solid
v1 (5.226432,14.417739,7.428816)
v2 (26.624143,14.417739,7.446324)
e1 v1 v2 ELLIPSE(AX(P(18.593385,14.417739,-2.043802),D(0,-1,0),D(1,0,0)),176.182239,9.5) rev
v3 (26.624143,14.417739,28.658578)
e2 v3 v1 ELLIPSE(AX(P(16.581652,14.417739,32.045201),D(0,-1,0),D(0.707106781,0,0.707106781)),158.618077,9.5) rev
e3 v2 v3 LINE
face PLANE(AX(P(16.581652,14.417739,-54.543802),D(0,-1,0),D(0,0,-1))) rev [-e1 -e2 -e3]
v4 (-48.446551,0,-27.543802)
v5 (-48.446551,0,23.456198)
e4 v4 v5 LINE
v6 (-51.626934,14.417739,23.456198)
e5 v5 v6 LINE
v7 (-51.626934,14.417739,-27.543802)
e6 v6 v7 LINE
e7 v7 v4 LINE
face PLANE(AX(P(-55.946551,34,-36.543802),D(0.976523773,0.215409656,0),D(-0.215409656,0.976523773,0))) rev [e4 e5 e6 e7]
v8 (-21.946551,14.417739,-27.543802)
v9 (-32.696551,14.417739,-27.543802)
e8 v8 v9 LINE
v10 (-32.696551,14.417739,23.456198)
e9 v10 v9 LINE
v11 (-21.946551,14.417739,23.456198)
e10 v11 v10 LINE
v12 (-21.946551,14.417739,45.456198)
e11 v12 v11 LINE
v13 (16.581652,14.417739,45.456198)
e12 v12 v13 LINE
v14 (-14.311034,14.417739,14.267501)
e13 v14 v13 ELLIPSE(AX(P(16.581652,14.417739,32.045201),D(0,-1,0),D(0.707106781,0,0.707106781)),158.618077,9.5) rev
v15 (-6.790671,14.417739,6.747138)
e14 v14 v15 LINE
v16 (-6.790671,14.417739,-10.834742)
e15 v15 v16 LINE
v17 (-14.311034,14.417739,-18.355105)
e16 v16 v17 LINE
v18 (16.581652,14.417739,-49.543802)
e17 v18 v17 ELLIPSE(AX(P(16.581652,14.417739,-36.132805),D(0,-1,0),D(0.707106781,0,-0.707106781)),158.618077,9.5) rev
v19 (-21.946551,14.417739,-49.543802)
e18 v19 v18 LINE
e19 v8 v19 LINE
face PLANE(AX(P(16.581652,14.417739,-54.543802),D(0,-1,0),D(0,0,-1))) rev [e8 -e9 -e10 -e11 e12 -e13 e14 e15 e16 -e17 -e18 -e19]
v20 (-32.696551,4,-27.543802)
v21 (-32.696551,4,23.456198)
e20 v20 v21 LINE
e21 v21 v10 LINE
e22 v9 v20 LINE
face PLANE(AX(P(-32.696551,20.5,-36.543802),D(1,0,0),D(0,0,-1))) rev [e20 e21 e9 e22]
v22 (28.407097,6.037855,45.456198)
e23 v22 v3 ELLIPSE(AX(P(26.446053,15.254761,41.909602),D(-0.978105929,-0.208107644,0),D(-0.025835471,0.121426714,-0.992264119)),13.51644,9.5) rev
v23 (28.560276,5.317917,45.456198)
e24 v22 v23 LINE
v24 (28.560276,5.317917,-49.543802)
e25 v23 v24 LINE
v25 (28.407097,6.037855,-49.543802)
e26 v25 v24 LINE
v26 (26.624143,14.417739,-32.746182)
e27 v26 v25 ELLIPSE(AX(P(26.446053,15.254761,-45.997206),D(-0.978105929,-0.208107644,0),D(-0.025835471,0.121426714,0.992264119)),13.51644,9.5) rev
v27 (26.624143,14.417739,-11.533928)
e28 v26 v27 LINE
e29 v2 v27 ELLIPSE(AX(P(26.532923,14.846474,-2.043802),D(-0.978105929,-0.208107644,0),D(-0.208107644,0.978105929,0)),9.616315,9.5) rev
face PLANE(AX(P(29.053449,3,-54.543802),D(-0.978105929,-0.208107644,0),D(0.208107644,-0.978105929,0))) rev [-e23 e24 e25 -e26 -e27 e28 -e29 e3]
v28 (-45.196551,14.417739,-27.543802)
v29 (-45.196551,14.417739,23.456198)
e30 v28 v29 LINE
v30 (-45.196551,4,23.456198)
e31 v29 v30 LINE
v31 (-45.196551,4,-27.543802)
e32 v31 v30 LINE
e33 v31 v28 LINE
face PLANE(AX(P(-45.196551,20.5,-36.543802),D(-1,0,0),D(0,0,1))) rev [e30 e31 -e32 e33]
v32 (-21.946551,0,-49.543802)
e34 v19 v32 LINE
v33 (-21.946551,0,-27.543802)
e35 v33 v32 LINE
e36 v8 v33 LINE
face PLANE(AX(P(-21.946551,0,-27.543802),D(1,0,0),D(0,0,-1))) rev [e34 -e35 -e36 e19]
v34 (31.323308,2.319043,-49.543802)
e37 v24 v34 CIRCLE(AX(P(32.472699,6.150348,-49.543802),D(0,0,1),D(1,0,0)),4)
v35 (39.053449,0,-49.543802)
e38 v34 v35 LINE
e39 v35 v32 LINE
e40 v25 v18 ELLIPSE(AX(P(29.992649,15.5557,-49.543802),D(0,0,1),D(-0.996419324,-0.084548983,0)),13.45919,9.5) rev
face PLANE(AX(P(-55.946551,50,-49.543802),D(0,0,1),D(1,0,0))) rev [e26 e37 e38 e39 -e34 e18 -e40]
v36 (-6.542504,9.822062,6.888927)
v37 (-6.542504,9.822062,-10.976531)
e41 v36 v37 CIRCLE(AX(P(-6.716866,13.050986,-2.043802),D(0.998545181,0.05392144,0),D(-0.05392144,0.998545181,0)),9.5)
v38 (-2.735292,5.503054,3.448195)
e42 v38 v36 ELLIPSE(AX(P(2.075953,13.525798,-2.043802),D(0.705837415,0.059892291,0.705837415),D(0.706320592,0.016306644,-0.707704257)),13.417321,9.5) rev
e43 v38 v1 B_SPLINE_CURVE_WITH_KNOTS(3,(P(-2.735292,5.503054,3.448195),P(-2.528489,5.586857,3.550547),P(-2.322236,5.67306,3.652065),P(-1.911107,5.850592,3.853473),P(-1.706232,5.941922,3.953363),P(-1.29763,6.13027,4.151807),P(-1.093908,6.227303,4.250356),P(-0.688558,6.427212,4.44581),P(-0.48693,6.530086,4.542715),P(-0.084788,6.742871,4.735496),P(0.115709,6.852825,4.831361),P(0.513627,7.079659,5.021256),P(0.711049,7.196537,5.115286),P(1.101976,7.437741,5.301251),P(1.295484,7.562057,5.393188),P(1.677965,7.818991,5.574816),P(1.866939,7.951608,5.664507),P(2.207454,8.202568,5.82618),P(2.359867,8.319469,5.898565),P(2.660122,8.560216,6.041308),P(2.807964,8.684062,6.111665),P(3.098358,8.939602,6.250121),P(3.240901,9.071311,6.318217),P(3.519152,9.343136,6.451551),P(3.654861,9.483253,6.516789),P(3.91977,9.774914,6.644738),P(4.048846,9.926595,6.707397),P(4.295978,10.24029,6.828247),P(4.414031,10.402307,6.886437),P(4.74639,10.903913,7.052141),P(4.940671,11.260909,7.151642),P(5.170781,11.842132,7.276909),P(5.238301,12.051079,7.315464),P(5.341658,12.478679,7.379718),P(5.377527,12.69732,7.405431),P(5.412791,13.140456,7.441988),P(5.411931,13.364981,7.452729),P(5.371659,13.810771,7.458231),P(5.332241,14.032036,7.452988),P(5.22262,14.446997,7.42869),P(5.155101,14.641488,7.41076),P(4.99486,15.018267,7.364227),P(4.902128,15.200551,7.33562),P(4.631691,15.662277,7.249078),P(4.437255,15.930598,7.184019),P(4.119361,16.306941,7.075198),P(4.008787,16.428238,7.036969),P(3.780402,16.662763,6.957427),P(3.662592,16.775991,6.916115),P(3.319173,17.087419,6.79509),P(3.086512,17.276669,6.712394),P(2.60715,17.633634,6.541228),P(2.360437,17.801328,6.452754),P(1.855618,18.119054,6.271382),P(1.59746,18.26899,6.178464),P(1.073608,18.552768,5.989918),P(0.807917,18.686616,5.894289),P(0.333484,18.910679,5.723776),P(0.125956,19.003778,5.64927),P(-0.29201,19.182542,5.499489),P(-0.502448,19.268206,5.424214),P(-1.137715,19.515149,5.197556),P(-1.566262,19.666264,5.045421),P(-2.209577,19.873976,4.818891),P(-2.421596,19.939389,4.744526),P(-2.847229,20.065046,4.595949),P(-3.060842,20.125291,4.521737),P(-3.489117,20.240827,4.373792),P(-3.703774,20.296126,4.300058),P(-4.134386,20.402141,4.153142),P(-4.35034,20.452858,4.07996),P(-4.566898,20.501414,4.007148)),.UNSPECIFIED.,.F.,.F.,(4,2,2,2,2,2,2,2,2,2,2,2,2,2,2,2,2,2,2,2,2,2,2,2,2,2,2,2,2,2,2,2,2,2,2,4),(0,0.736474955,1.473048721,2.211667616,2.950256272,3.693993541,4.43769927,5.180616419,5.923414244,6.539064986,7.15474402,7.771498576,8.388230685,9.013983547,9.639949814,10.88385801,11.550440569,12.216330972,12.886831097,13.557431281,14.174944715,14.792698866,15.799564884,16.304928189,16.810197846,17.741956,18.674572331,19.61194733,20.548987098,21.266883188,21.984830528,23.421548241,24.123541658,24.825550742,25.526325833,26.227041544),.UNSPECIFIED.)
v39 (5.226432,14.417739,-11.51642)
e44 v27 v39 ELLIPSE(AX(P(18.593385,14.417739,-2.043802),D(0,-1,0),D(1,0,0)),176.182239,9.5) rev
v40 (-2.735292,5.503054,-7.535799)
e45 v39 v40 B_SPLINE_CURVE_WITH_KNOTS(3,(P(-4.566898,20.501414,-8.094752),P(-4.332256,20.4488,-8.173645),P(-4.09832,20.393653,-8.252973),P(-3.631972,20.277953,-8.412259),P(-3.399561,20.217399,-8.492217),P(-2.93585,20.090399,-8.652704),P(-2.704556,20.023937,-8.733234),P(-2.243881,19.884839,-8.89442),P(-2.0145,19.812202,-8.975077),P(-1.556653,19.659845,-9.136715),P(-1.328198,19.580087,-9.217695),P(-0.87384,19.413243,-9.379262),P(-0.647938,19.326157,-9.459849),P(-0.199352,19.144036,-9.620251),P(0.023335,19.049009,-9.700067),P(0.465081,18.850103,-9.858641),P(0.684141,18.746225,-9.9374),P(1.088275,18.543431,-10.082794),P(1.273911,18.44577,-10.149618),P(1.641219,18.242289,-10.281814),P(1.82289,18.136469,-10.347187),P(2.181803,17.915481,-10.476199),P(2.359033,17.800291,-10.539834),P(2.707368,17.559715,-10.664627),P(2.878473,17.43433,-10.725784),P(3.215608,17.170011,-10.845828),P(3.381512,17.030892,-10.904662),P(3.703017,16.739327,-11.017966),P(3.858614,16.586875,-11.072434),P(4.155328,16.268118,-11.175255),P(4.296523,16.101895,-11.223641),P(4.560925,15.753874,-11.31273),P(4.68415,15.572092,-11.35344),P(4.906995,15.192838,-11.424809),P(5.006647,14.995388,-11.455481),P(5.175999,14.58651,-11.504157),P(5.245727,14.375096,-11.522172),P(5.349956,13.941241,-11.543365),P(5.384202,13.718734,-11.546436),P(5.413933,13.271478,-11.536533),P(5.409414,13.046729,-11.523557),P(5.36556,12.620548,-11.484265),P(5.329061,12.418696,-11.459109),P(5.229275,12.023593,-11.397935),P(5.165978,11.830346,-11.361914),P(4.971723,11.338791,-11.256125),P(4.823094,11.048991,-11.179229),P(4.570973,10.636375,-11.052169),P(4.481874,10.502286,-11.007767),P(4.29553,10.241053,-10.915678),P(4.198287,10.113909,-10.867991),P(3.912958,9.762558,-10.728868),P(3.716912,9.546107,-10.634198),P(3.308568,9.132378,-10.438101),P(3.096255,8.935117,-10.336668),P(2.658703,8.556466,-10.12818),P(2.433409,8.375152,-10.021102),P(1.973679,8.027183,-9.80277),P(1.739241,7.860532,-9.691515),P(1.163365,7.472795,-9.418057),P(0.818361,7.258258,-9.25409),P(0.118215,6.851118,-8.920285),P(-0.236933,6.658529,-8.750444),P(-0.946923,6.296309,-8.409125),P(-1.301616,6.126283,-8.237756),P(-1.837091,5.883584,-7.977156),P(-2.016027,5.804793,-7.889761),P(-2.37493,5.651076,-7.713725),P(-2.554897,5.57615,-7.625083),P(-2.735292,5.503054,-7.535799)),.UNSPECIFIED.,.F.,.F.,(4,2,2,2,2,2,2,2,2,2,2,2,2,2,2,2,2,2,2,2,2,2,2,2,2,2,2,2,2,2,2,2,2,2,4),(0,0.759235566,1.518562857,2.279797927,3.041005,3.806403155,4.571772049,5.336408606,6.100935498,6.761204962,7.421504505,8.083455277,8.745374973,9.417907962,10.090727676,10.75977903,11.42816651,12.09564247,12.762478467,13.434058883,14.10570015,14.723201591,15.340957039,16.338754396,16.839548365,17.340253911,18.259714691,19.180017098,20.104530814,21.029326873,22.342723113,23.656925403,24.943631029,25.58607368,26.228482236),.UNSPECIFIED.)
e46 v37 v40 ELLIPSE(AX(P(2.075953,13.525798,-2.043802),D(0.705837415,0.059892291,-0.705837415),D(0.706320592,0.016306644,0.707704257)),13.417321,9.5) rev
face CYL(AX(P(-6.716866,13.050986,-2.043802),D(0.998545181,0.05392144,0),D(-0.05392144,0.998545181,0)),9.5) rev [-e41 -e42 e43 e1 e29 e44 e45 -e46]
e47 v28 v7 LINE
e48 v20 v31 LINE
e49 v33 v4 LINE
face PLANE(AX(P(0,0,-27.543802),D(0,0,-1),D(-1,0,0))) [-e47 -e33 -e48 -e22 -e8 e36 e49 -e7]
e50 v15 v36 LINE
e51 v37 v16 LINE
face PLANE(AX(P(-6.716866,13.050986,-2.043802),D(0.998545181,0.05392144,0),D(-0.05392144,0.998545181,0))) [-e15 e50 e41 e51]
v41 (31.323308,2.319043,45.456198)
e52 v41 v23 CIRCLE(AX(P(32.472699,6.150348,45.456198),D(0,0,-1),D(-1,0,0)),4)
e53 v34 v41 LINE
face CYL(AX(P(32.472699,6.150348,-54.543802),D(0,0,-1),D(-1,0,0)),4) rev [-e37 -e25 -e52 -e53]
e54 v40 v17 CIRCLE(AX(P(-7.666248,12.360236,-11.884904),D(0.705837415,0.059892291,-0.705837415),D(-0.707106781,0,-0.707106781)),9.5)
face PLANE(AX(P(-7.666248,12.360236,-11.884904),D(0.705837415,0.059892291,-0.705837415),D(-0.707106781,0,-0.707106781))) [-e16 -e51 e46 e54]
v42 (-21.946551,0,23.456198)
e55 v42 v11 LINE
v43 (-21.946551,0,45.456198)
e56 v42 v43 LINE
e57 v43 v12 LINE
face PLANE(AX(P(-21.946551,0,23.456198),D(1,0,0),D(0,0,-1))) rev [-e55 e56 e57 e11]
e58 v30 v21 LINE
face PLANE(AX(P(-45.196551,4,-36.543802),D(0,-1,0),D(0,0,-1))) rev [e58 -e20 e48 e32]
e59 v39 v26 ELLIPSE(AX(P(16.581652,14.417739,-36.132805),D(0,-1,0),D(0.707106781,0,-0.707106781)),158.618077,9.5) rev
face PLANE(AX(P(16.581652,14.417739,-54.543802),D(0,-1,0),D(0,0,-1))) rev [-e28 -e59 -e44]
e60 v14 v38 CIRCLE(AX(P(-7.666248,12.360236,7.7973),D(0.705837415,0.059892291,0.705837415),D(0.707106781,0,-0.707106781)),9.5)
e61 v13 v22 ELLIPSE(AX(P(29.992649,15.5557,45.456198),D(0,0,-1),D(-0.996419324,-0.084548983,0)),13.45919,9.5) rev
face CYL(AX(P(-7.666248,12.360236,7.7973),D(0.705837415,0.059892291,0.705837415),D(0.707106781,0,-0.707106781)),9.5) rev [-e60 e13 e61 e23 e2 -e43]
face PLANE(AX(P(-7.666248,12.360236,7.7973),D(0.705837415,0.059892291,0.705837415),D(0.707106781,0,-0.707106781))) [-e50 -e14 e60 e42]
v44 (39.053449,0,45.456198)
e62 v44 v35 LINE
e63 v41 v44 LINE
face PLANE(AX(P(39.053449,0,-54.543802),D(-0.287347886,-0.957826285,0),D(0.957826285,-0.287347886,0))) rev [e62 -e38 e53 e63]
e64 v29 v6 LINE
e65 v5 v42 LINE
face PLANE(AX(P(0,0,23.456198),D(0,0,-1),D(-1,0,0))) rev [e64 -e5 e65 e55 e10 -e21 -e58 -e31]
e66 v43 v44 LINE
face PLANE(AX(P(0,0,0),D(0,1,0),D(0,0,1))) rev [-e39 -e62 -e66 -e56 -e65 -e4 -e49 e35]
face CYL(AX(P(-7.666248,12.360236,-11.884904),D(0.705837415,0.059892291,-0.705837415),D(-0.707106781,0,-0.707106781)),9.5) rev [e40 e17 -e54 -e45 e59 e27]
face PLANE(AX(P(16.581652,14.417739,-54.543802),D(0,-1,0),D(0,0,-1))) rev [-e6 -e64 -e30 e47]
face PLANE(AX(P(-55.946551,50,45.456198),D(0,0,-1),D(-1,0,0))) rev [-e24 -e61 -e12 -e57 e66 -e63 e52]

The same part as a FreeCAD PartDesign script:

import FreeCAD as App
import Part
import Sketcher
from FreeCAD import Vector
Q = App.Units.Quantity


def edges_at(feature, points):
    """Names of the edges that pass closest to the given points."""
    edges = feature.Shape.Edges
    near = lambda p: min(range(len(edges)), key=lambda i: edges[i].distToShape(Part.Vertex(*p))[0])
    return sorted({f"Edge{near(p) + 1}" for p in points})

doc = App.newDocument("Part")
body = doc.addObject("PartDesign::Body", "Body")

sketch1 = body.newObject("Sketcher::SketchObject", "Sketch")
sketch1.AttachmentSupport = (doc.getObject("XZ_Plane"), [""])
sketch1.MapMode = "FlatFace"
sketch1.addGeometry(Part.LineSegment(Vector(-56, -50, 0), Vector(-56, 45, 0)), False)
sketch1.addGeometry(Part.LineSegment(Vector(-56, 45, 0), Vector(39, 45, 0)), False)
sketch1.addGeometry(Part.LineSegment(Vector(39, 45, 0), Vector(39, -50, 0)), False)
sketch1.addGeometry(Part.LineSegment(Vector(39, -50, 0), Vector(-56, -50, 0)), False)
sketch1.addConstraint(Sketcher.Constraint("Coincident", 0, 2, 1, 1))
sketch1.addConstraint(Sketcher.Constraint("Coincident", 1, 2, 2, 1))
sketch1.addConstraint(Sketcher.Constraint("Coincident", 2, 2, 3, 1))
sketch1.addConstraint(Sketcher.Constraint("Coincident", 3, 2, 0, 1))
sketch1.addConstraint(Sketcher.Constraint("Vertical", 0))
sketch1.addConstraint(Sketcher.Constraint("Horizontal", 1))
sketch1.addConstraint(Sketcher.Constraint("Vertical", 2))
sketch1.addConstraint(Sketcher.Constraint("Horizontal", 3))
sketch1.addConstraint(Sketcher.Constraint("Equal", 3, 0))
sketch1.addConstraint(Sketcher.Constraint("DistanceX", 1, 1, 1, 2, Q("95 mm")))
sketch1.addConstraint(Sketcher.Constraint("DistanceY", -1, 1, 0, 2, Q("45.456198 mm")))
sketch1.addConstraint(Sketcher.Constraint("DistanceX", 0, 2, -1, 1, Q("55.946551 mm")))
pad1 = body.newObject("PartDesign::Pad", "Pad")
pad1.Profile = sketch1
pad1.Length = 50
pad1.Reversed = True

sketch2 = body.newObject("Sketcher::SketchObject", "Sketch001")
sketch2.AttachmentSupport = (doc.getObject("XY_Plane"), [""])
sketch2.MapMode = "FlatFace"
sketch2.AttachmentOffset = App.Placement(Vector(0, 0, 45.456198), App.Rotation())
sketch2.addGeometry(Part.LineSegment(Vector(36.4, 50, 0), Vector(39.1, 0, 0)), False)
sketch2.addGeometry(Part.LineSegment(Vector(39.1, 0, 0), Vector(39.1, 50, 0)), False)
sketch2.addGeometry(Part.LineSegment(Vector(39.1, 50, 0), Vector(36.4, 50, 0)), False)
sketch2.addConstraint(Sketcher.Constraint("Coincident", 0, 2, 1, 1))
sketch2.addConstraint(Sketcher.Constraint("Coincident", 1, 2, 2, 1))
sketch2.addConstraint(Sketcher.Constraint("Coincident", 2, 2, 0, 1))
sketch2.addConstraint(Sketcher.Constraint("Vertical", 1))
sketch2.addConstraint(Sketcher.Constraint("Horizontal", 2))
sketch2.addConstraint(Sketcher.Constraint("PointOnObject", 0, 2, -1))
sketch2.addConstraint(Sketcher.Constraint("DistanceY", 1, 1, 1, 2, Q("50 mm")))
sketch2.addConstraint(Sketcher.Constraint("DistanceX", 2, 2, 2, 1, Q("2.7 mm")))
sketch2.addConstraint(Sketcher.Constraint("DistanceX", -1, 1, 0, 2, Q("39.053449 mm")))
pocket1 = body.newObject("PartDesign::Pocket", "Pocket")
pocket1.Profile = sketch2
pocket1.Length = 100

sketch3 = body.newObject("Sketcher::SketchObject", "Sketch002")
sketch3.Placement = App.Placement(Vector(38.939901, 2.102755, 0), App.Rotation(Vector(0, 0, -1), Vector(-0.05392144, 0.998545181, 0), Vector(0.998545181, 0.05392144, 0), "ZXY"))
sketch3.addGeometry(Part.Circle(Vector(2, 13, 0), Vector(0, 0, 1), 10), False)
sketch3.addConstraint(Sketcher.Constraint("Diameter", 0, Q("19 mm")))
sketch3.addConstraint(Sketcher.Constraint("DistanceX", -1, 1, 0, 3, Q("2.043802 mm")))
sketch3.addConstraint(Sketcher.Constraint("DistanceY", -1, 1, 0, 3, Q("13.394182 mm")))
pocket2 = body.newObject("PartDesign::Pocket", "Pocket001")
pocket2.Profile = sketch3
pocket2.Length = 45

sketch4 = body.newObject("Sketcher::SketchObject", "Sketch003")
sketch4.AttachmentSupport = (doc.getObject("XZ_Plane"), [""])
sketch4.MapMode = "FlatFace"
sketch4.AttachmentOffset = App.Placement(Vector(0, 0, -50), App.Rotation())
sketch4.addGeometry(Part.LineSegment(Vector(39, -30, 0), Vector(39, -50, 0)), False)
sketch4.addGeometry(Part.LineSegment(Vector(39, -50, 0), Vector(19, -50, 0)), False)
sketch4.addGeometry(Part.LineSegment(Vector(19, -50, 0), Vector(39, -30, 0)), False)
sketch4.addGeometry(Part.LineSegment(Vector(39, 45, 0), Vector(39, 25, 0)), False)
sketch4.addGeometry(Part.LineSegment(Vector(39, 25, 0), Vector(19, 45, 0)), False)
sketch4.addGeometry(Part.LineSegment(Vector(19, 45, 0), Vector(39, 45, 0)), False)
sketch4.addConstraint(Sketcher.Constraint("Coincident", 0, 2, 1, 1))
sketch4.addConstraint(Sketcher.Constraint("Coincident", 1, 2, 2, 1))
sketch4.addConstraint(Sketcher.Constraint("Coincident", 2, 2, 0, 1))
sketch4.addConstraint(Sketcher.Constraint("Coincident", 3, 2, 4, 1))
sketch4.addConstraint(Sketcher.Constraint("Coincident", 4, 2, 5, 1))
sketch4.addConstraint(Sketcher.Constraint("Coincident", 5, 2, 3, 1))
sketch4.addConstraint(Sketcher.Constraint("Vertical", 0))
sketch4.addConstraint(Sketcher.Constraint("Horizontal", 1))
sketch4.addConstraint(Sketcher.Constraint("Vertical", 3))
sketch4.addConstraint(Sketcher.Constraint("Horizontal", 5))
sketch4.addConstraint(Sketcher.Constraint("Perpendicular", 2, 4))
sketch4.addConstraint(Sketcher.Constraint("Vertical", 2, 2, 3, 2))
sketch4.addConstraint(Sketcher.Constraint("Vertical", 1, 2, 4, 2))
sketch4.addConstraint(Sketcher.Constraint("Equal", 5, 0))
sketch4.addConstraint(Sketcher.Constraint("DistanceX", 1, 2, 1, 1, Q("20 mm")))
sketch4.addConstraint(Sketcher.Constraint("DistanceY", 2, 2, 3, 2, Q("55 mm")))
sketch4.addConstraint(Sketcher.Constraint("DistanceY", 0, 2, -1, 1, Q("49.543802 mm")))
sketch4.addConstraint(Sketcher.Constraint("DistanceX", -1, 1, 0, 2, Q("39.053449 mm")))
pocket3 = body.newObject("PartDesign::Pocket", "Pocket002")
pocket3.Profile = sketch4
pocket3.Length = 45
pocket3.Reversed = True

sketch5 = body.newObject("Sketcher::SketchObject", "Sketch004")
sketch5.AttachmentSupport = (doc.getObject("XZ_Plane"), [""])
sketch5.MapMode = "FlatFace"
sketch5.AttachmentOffset = App.Placement(Vector(0, 0, -50), App.Rotation())
sketch5.addGeometry(Part.LineSegment(Vector(19, 45, 0), Vector(13, 39, 0)), False)
sketch5.addGeometry(Part.LineSegment(Vector(13, 39, 0), Vector(7, 45, 0)), False)
sketch5.addGeometry(Part.LineSegment(Vector(7, 45, 0), Vector(19, 45, 0)), False)
sketch5.addGeometry(Part.LineSegment(Vector(13, -43, 0), Vector(19, -50, 0)), False)
sketch5.addGeometry(Part.LineSegment(Vector(19, -50, 0), Vector(7, -50, 0)), False)
sketch5.addGeometry(Part.LineSegment(Vector(7, -50, 0), Vector(13, -43, 0)), False)
sketch5.addConstraint(Sketcher.Constraint("Coincident", 0, 2, 1, 1))
sketch5.addConstraint(Sketcher.Constraint("Coincident", 1, 2, 2, 1))
sketch5.addConstraint(Sketcher.Constraint("Coincident", 2, 2, 0, 1))
sketch5.addConstraint(Sketcher.Constraint("Coincident", 3, 2, 4, 1))
sketch5.addConstraint(Sketcher.Constraint("Coincident", 4, 2, 5, 1))
sketch5.addConstraint(Sketcher.Constraint("Coincident", 5, 2, 3, 1))
sketch5.addConstraint(Sketcher.Constraint("Horizontal", 2))
sketch5.addConstraint(Sketcher.Constraint("Horizontal", 4))
sketch5.addConstraint(Sketcher.Constraint("Perpendicular", 0, 1))
sketch5.addConstraint(Sketcher.Constraint("Parallel", 1, 3))
sketch5.addConstraint(Sketcher.Constraint("Perpendicular", 3, 5))
sketch5.addConstraint(Sketcher.Constraint("Vertical", 2, 2, 3, 2))
sketch5.addConstraint(Sketcher.Constraint("Vertical", 1, 2, 4, 2))
sketch5.addConstraint(Sketcher.Constraint("Vertical", 0, 2, 5, 2))
sketch5.addConstraint(Sketcher.Constraint("DistanceY", 3, 2, 2, 2, Q("95 mm")))
sketch5.addConstraint(Sketcher.Constraint("DistanceX", 2, 1, 2, 2, Q("12.25576 mm")))
sketch5.addConstraint(Sketcher.Constraint("DistanceY", -1, 1, 1, 2, Q("45.456198 mm")))
sketch5.addConstraint(Sketcher.Constraint("DistanceX", -1, 1, 0, 2, Q("12.92557 mm")))
pocket4 = body.newObject("PartDesign::Pocket", "Pocket003")
pocket4.Profile = sketch5
pocket4.Length = 45
pocket4.Reversed = True

sketch6 = body.newObject("Sketcher::SketchObject", "Sketch005")
sketch6.Placement = App.Placement(Vector(-13.201374, 0, 13.201374), App.Rotation(Vector(0.707106781, 0, 0.707106781), Vector(0, 0.999999999, 0), Vector(-0.707106781, 0, 0.707106781), "ZXY"))
sketch6.addGeometry(Part.LineSegment(Vector(42.9, 50, 0), Vector(45.6, 5, 0)), False)
sketch6.addGeometry(Part.LineSegment(Vector(45.6, 5, 0), Vector(45.6, 50, 0)), False)
sketch6.addGeometry(Part.LineSegment(Vector(45.6, 50, 0), Vector(42.9, 50, 0)), False)
sketch6.addConstraint(Sketcher.Constraint("Coincident", 0, 2, 1, 1))
sketch6.addConstraint(Sketcher.Constraint("Coincident", 1, 2, 2, 1))
sketch6.addConstraint(Sketcher.Constraint("Coincident", 2, 2, 0, 1))
sketch6.addConstraint(Sketcher.Constraint("Vertical", 1))
sketch6.addConstraint(Sketcher.Constraint("Horizontal", 2))
sketch6.addConstraint(Sketcher.Constraint("DistanceY", 1, 1, 1, 2, Q("45 mm")))
sketch6.addConstraint(Sketcher.Constraint("DistanceX", 2, 2, 2, 1, Q("2.7 mm")))
sketch6.addConstraint(Sketcher.Constraint("DistanceY", -1, 1, 0, 2, Q("5 mm")))
sketch6.addConstraint(Sketcher.Constraint("DistanceX", -1, 1, 0, 2, Q("45.615209 mm")))
pocket5 = body.newObject("PartDesign::Pocket", "Pocket004")
pocket5.Profile = sketch6
pocket5.Length = 45

sketch7 = body.newObject("Sketcher::SketchObject", "Sketch006")
sketch7.Placement = App.Placement(Vector(-15.245176, 0, -15.245176), App.Rotation(Vector(-0.707106781, 0, 0.707106781), Vector(0, 0.999999999, 0), Vector(-0.707106781, 0, -0.707106781), "ZXY"))
sketch7.addGeometry(Part.LineSegment(Vector(-48.5, 5, 0), Vector(-45.8, 50, 0)), False)
sketch7.addGeometry(Part.LineSegment(Vector(-45.8, 50, 0), Vector(-48.5, 50, 0)), False)
sketch7.addGeometry(Part.LineSegment(Vector(-48.5, 50, 0), Vector(-48.5, 5, 0)), False)
sketch7.addConstraint(Sketcher.Constraint("Coincident", 0, 2, 1, 1))
sketch7.addConstraint(Sketcher.Constraint("Coincident", 1, 2, 2, 1))
sketch7.addConstraint(Sketcher.Constraint("Coincident", 2, 2, 0, 1))
sketch7.addConstraint(Sketcher.Constraint("Horizontal", 1))
sketch7.addConstraint(Sketcher.Constraint("Vertical", 2))
sketch7.addConstraint(Sketcher.Constraint("DistanceY", 2, 2, 2, 1, Q("45 mm")))
sketch7.addConstraint(Sketcher.Constraint("DistanceX", 1, 2, 1, 1, Q("2.7 mm")))
sketch7.addConstraint(Sketcher.Constraint("DistanceY", -1, 1, 0, 2, Q("50 mm")))
sketch7.addConstraint(Sketcher.Constraint("DistanceX", 0, 2, -1, 1, Q("45.805582 mm")))
pocket6 = body.newObject("PartDesign::Pocket", "Pocket005")
pocket6.Profile = sketch7
pocket6.Length = 45

sketch8 = body.newObject("Sketcher::SketchObject", "Sketch007")
sketch8.Placement = App.Placement(Vector(34.386965, 2.917831, -34.386965), App.Rotation(Vector(-0.708373873, 0.059677836, -0.70331004), Vector(0, 0.996419324, 0.084548984), Vector(0.705837415, 0.059892291, -0.705837415), "ZXY"))
sketch8.addGeometry(Part.Circle(Vector(15, 11, 0), Vector(0, 0, 1), 10), False)
sketch8.addConstraint(Sketcher.Constraint("Diameter", 0, Q("19 mm")))
sketch8.addConstraint(Sketcher.Constraint("DistanceY", -1, 1, 0, 3, Q("11.311122 mm")))
sketch8.addConstraint(Sketcher.Constraint("DistanceX", -1, 1, 0, 3, Q("14.526975 mm")))
pocket7 = body.newObject("PartDesign::Pocket", "Pocket006")
pocket7.Profile = sketch8
pocket7.Length = 45

sketch9 = body.newObject("Sketcher::SketchObject", "Sketch008")
sketch9.Placement = App.Placement(Vector(32.350494, 2.74503, 32.350494), App.Rotation(Vector(0.70331004, 0.059677836, -0.708373873), Vector(-0.084548984, 0.996419324, 0), Vector(0.705837415, 0.059892291, 0.705837415), "ZXY"))
sketch9.addGeometry(Part.Circle(Vector(-10, 13, 0), Vector(0, 0, 1), 10), False)
sketch9.addConstraint(Sketcher.Constraint("Diameter", 0, Q("19 mm")))
sketch9.addConstraint(Sketcher.Constraint("DistanceX", 0, 3, -1, 1, Q("10.177521 mm")))
sketch9.addConstraint(Sketcher.Constraint("DistanceY", -1, 1, 0, 3, Q("12.964152 mm")))
pocket8 = body.newObject("PartDesign::Pocket", "Pocket007")
pocket8.Profile = sketch9
pocket8.Length = 45

sketch10 = body.newObject("Sketcher::SketchObject", "Sketch009")
sketch10.AttachmentSupport = (doc.getObject("XZ_Plane"), [""])
sketch10.MapMode = "FlatFace"
sketch10.AttachmentOffset = App.Placement(Vector(0, 0, -5), App.Rotation())
sketch10.addGeometry(Part.LineSegment(Vector(7, -50, 0), Vector(7, 45, 0)), False)
sketch10.addGeometry(Part.LineSegment(Vector(7, 45, 0), Vector(39, 45, 0)), False)
sketch10.addGeometry(Part.LineSegment(Vector(39, 45, 0), Vector(39, -50, 0)), False)
sketch10.addGeometry(Part.LineSegment(Vector(39, -50, 0), Vector(7, -50, 0)), False)
sketch10.addConstraint(Sketcher.Constraint("Coincident", 0, 2, 1, 1))
sketch10.addConstraint(Sketcher.Constraint("Coincident", 1, 2, 2, 1))
sketch10.addConstraint(Sketcher.Constraint("Coincident", 2, 2, 3, 1))
sketch10.addConstraint(Sketcher.Constraint("Coincident", 3, 2, 0, 1))
sketch10.addConstraint(Sketcher.Constraint("Vertical", 0))
sketch10.addConstraint(Sketcher.Constraint("Horizontal", 1))
sketch10.addConstraint(Sketcher.Constraint("Vertical", 2))
sketch10.addConstraint(Sketcher.Constraint("Horizontal", 3))
sketch10.addConstraint(Sketcher.Constraint("DistanceY", 0, 1, 0, 2, Q("95 mm")))
sketch10.addConstraint(Sketcher.Constraint("DistanceX", 1, 1, 1, 2, Q("31.98576 mm")))
sketch10.addConstraint(Sketcher.Constraint("DistanceY", -1, 1, 0, 2, Q("45.456198 mm")))
sketch10.addConstraint(Sketcher.Constraint("DistanceX", -1, 1, 0, 2, Q("6.79769 mm")))
pad2 = body.newObject("PartDesign::Pad", "Pad001")
pad2.Profile = sketch10
pad2.Length = 45
pad2.Reversed = True

sketch11 = body.newObject("Sketcher::SketchObject", "Sketch010")
sketch11.AttachmentSupport = (doc.getObject("XY_Plane"), [""])
sketch11.MapMode = "FlatFace"
sketch11.AttachmentOffset = App.Placement(Vector(0, 0, 45.456198), App.Rotation())
sketch11.addGeometry(Part.LineSegment(Vector(29, 3, 0), Vector(39, 0, 0)), False)
sketch11.addGeometry(Part.LineSegment(Vector(39, 0, 0), Vector(50, 50, 0)), False)
sketch11.addGeometry(Part.LineSegment(Vector(50, 50, 0), Vector(19, 50, 0)), False)
sketch11.addGeometry(Part.LineSegment(Vector(19, 50, 0), Vector(29, 3, 0)), False)
sketch11.addConstraint(Sketcher.Constraint("Coincident", 0, 2, 1, 1))
sketch11.addConstraint(Sketcher.Constraint("Coincident", 1, 2, 2, 1))
sketch11.addConstraint(Sketcher.Constraint("Coincident", 2, 2, 3, 1))
sketch11.addConstraint(Sketcher.Constraint("Coincident", 3, 2, 0, 1))
sketch11.addConstraint(Sketcher.Constraint("Horizontal", 2))
sketch11.addConstraint(Sketcher.Constraint("PointOnObject", 0, 2, -1))
sketch11.addConstraint(Sketcher.Constraint("DistanceY", -1, 1, 1, 2, Q("50 mm")))
sketch11.addConstraint(Sketcher.Constraint("DistanceY", -1, 1, 3, 2, Q("3 mm")))
sketch11.addConstraint(Sketcher.Constraint("DistanceX", 2, 2, 0, 2, Q("20 mm")))
sketch11.addConstraint(Sketcher.Constraint("DistanceX", 3, 2, 0, 2, Q("10 mm")))
sketch11.addConstraint(Sketcher.Constraint("DistanceX", 2, 2, 2, 1, Q("30.691826 mm")))
sketch11.addConstraint(Sketcher.Constraint("DistanceX", -1, 1, 0, 2, Q("39.053449 mm")))
pocket9 = body.newObject("PartDesign::Pocket", "Pocket008")
pocket9.Profile = sketch11
pocket9.Length = 100

sketch12 = body.newObject("Sketcher::SketchObject", "Sketch011")
sketch12.Placement = App.Placement(Vector(-5.994632, -0.32371, 0), App.Rotation(Vector(0, 0, -1), Vector(-0.05392144, 0.998545181, 0), Vector(0.998545181, 0.05392144, 0), "ZXY"))
sketch12.addGeometry(Part.Circle(Vector(2, 13, 0), Vector(0, 0, 1), 10), False)
sketch12.addConstraint(Sketcher.Constraint("Diameter", 0, Q("19 mm")))
sketch12.addConstraint(Sketcher.Constraint("DistanceX", -1, 1, 0, 3, Q("2.043802 mm")))
sketch12.addConstraint(Sketcher.Constraint("DistanceY", -1, 1, 0, 3, Q("13.394182 mm")))
pocket10 = body.newObject("PartDesign::Pocket", "Pocket009")
pocket10.Profile = sketch12
pocket10.Length = 100
pocket10.Reversed = True

sketch13 = body.newObject("Sketcher::SketchObject", "Sketch012")
sketch13.Placement = App.Placement(Vector(0.58781, 0.049877, 0.58781), App.Rotation(Vector(0.70331004, 0.059677836, -0.708373873), Vector(-0.084548984, 0.996419324, 0), Vector(0.705837415, 0.059892291, 0.705837415), "ZXY"))
sketch13.addGeometry(Part.Circle(Vector(-10, 13, 0), Vector(0, 0, 1), 10), False)
sketch13.addConstraint(Sketcher.Constraint("Diameter", 0, Q("19 mm")))
sketch13.addConstraint(Sketcher.Constraint("DistanceX", 0, 3, -1, 1, Q("10.177521 mm")))
sketch13.addConstraint(Sketcher.Constraint("DistanceY", -1, 1, 0, 3, Q("12.964152 mm")))
pocket11 = body.newObject("PartDesign::Pocket", "Pocket010")
pocket11.Profile = sketch13
pocket11.Length = 100
pocket11.Reversed = True

sketch14 = body.newObject("Sketcher::SketchObject", "Sketch013")
sketch14.Placement = App.Placement(Vector(2.624281, 0.222678, -2.624281), App.Rotation(Vector(-0.708373873, 0.059677836, -0.70331004), Vector(0, 0.996419324, 0.084548984), Vector(0.705837415, 0.059892291, -0.705837415), "ZXY"))
sketch14.addGeometry(Part.Circle(Vector(15, 11, 0), Vector(0, 0, 1), 10), False)
sketch14.addConstraint(Sketcher.Constraint("Diameter", 0, Q("19 mm")))
sketch14.addConstraint(Sketcher.Constraint("DistanceY", -1, 1, 0, 3, Q("11.311122 mm")))
sketch14.addConstraint(Sketcher.Constraint("DistanceX", -1, 1, 0, 3, Q("14.526975 mm")))
pocket12 = body.newObject("PartDesign::Pocket", "Pocket011")
pocket12.Profile = sketch14
pocket12.Length = 100
pocket12.Reversed = True
doc.recompute()

fillet = body.newObject("PartDesign::Fillet", "Fillet")
fillet.Base = (pocket12, edges_at(pocket12, [(29.053, 3, -2.044)]))
fillet.Radius = 4

sketch15 = body.newObject("Sketcher::SketchObject", "Sketch014")
sketch15.AttachmentSupport = (doc.getObject("XY_Plane"), [""])
sketch15.MapMode = "FlatFace"
sketch15.AttachmentOffset = App.Placement(Vector(0, 0, 45.456198), App.Rotation())
sketch15.addGeometry(Part.LineSegment(Vector(-56, 34, 0), Vector(-56, 0, 0)), False)
sketch15.addGeometry(Part.LineSegment(Vector(-56, 0, 0), Vector(-22, 0, 0)), False)
sketch15.addGeometry(Part.LineSegment(Vector(-22, 0, 0), Vector(-22, 34, 0)), False)
sketch15.addGeometry(Part.LineSegment(Vector(-22, 34, 0), Vector(-56, 34, 0)), False)
sketch15.addConstraint(Sketcher.Constraint("Coincident", 0, 2, 1, 1))
sketch15.addConstraint(Sketcher.Constraint("Coincident", 1, 2, 2, 1))
sketch15.addConstraint(Sketcher.Constraint("Coincident", 2, 2, 3, 1))
sketch15.addConstraint(Sketcher.Constraint("Coincident", 3, 2, 0, 1))
sketch15.addConstraint(Sketcher.Constraint("Vertical", 0))
sketch15.addConstraint(Sketcher.Constraint("Horizontal", 1))
sketch15.addConstraint(Sketcher.Constraint("Vertical", 2))
sketch15.addConstraint(Sketcher.Constraint("Horizontal", 3))
sketch15.addConstraint(Sketcher.Constraint("PointOnObject", 0, 2, -1))
sketch15.addConstraint(Sketcher.Constraint("Equal", 3, 0))
sketch15.addConstraint(Sketcher.Constraint("DistanceX", 1, 1, 1, 2, Q("34 mm")))
sketch15.addConstraint(Sketcher.Constraint("DistanceX", 0, 2, -1, 1, Q("55.946551 mm")))
pocket13 = body.newObject("PartDesign::Pocket", "Pocket012")
pocket13.Profile = sketch15
pocket13.Length = 22

sketch16 = body.newObject("Sketcher::SketchObject", "Sketch015")
sketch16.AttachmentSupport = (doc.getObject("XY_Plane"), [""])
sketch16.MapMode = "FlatFace"
sketch16.AttachmentOffset = App.Placement(Vector(0, 0, -49.543802), App.Rotation())
sketch16.addGeometry(Part.LineSegment(Vector(-22, 34, 0), Vector(-22, 0, 0)), False)
sketch16.addGeometry(Part.LineSegment(Vector(-22, 0, 0), Vector(-56, 0, 0)), False)
sketch16.addGeometry(Part.LineSegment(Vector(-56, 0, 0), Vector(-56, 34, 0)), False)
sketch16.addGeometry(Part.LineSegment(Vector(-56, 34, 0), Vector(-22, 34, 0)), False)
sketch16.addConstraint(Sketcher.Constraint("Coincident", 0, 2, 1, 1))
sketch16.addConstraint(Sketcher.Constraint("Coincident", 1, 2, 2, 1))
sketch16.addConstraint(Sketcher.Constraint("Coincident", 2, 2, 3, 1))
sketch16.addConstraint(Sketcher.Constraint("Coincident", 3, 2, 0, 1))
sketch16.addConstraint(Sketcher.Constraint("Vertical", 0))
sketch16.addConstraint(Sketcher.Constraint("Horizontal", 1))
sketch16.addConstraint(Sketcher.Constraint("Vertical", 2))
sketch16.addConstraint(Sketcher.Constraint("Horizontal", 3))
sketch16.addConstraint(Sketcher.Constraint("PointOnObject", 0, 2, -1))
sketch16.addConstraint(Sketcher.Constraint("Equal", 3, 0))
sketch16.addConstraint(Sketcher.Constraint("DistanceX", 1, 2, 1, 1, Q("34 mm")))
sketch16.addConstraint(Sketcher.Constraint("DistanceX", 0, 2, -1, 1, Q("21.946551 mm")))
pocket14 = body.newObject("PartDesign::Pocket", "Pocket013")
pocket14.Profile = sketch16
pocket14.Length = 22
pocket14.Reversed = True

sketch17 = body.newObject("Sketcher::SketchObject", "Sketch016")
sketch17.AttachmentSupport = (doc.getObject("XY_Plane"), [""])
sketch17.MapMode = "FlatFace"
sketch17.AttachmentOffset = App.Placement(Vector(0, 0, 23.456198), App.Rotation())
sketch17.addGeometry(Part.LineSegment(Vector(-45, 20, 0), Vector(-45, 4, 0)), False)
sketch17.addGeometry(Part.LineSegment(Vector(-45, 4, 0), Vector(-33, 4, 0)), False)
sketch17.addGeometry(Part.LineSegment(Vector(-33, 4, 0), Vector(-33, 20, 0)), False)
sketch17.addGeometry(Part.LineSegment(Vector(-33, 20, 0), Vector(-45, 20, 0)), False)
sketch17.addConstraint(Sketcher.Constraint("Coincident", 0, 2, 1, 1))
sketch17.addConstraint(Sketcher.Constraint("Coincident", 1, 2, 2, 1))
sketch17.addConstraint(Sketcher.Constraint("Coincident", 2, 2, 3, 1))
sketch17.addConstraint(Sketcher.Constraint("Coincident", 3, 2, 0, 1))
sketch17.addConstraint(Sketcher.Constraint("Vertical", 0))
sketch17.addConstraint(Sketcher.Constraint("Horizontal", 1))
sketch17.addConstraint(Sketcher.Constraint("Vertical", 2))
sketch17.addConstraint(Sketcher.Constraint("Horizontal", 3))
sketch17.addConstraint(Sketcher.Constraint("DistanceX", 1, 1, 1, 2, Q("12.5 mm")))
sketch17.addConstraint(Sketcher.Constraint("DistanceY", 0, 2, 0, 1, Q("16.5 mm")))
sketch17.addConstraint(Sketcher.Constraint("DistanceY", -1, 1, 0, 2, Q("4 mm")))
sketch17.addConstraint(Sketcher.Constraint("DistanceX", 0, 2, -1, 1, Q("45.196551 mm")))
pocket15 = body.newObject("PartDesign::Pocket", "Pocket014")
pocket15.Profile = sketch17
pocket15.Length = 60

sketch18 = body.newObject("Sketcher::SketchObject", "Sketch017")
sketch18.AttachmentSupport = (doc.getObject("XY_Plane"), [""])
sketch18.MapMode = "FlatFace"
sketch18.AttachmentOffset = App.Placement(Vector(0, 0, 23.456198), App.Rotation())
sketch18.addGeometry(Part.LineSegment(Vector(-48, 0, 0), Vector(-56, 34, 0)), False)
sketch18.addGeometry(Part.LineSegment(Vector(-56, 34, 0), Vector(-56, 0, 0)), False)
sketch18.addGeometry(Part.LineSegment(Vector(-56, 0, 0), Vector(-48, 0, 0)), False)
sketch18.addConstraint(Sketcher.Constraint("Coincident", 0, 2, 1, 1))
sketch18.addConstraint(Sketcher.Constraint("Coincident", 1, 2, 2, 1))
sketch18.addConstraint(Sketcher.Constraint("Coincident", 2, 2, 0, 1))
sketch18.addConstraint(Sketcher.Constraint("Vertical", 1))
sketch18.addConstraint(Sketcher.Constraint("Horizontal", 2))
sketch18.addConstraint(Sketcher.Constraint("PointOnObject", 1, 2, -1))
sketch18.addConstraint(Sketcher.Constraint("DistanceY", 1, 2, 1, 1, Q("34 mm")))
sketch18.addConstraint(Sketcher.Constraint("DistanceX", 2, 1, 2, 2, Q("7.5 mm")))
sketch18.addConstraint(Sketcher.Constraint("DistanceX", 0, 2, -1, 1, Q("55.946551 mm")))
pocket16 = body.newObject("PartDesign::Pocket", "Pocket015")
pocket16.Profile = sketch18
pocket16.Length = 60

sketch19 = body.newObject("Sketcher::SketchObject", "Sketch018")
sketch19.AttachmentSupport = (doc.getObject("XY_Plane"), [""])
sketch19.MapMode = "FlatFace"
sketch19.AttachmentOffset = App.Placement(Vector(0, 0, 45.456198), App.Rotation())
sketch19.addGeometry(Part.LineSegment(Vector(-58, 14, 0), Vector(42, 14, 0)), False)
sketch19.addGeometry(Part.LineSegment(Vector(42, 14, 0), Vector(42, 56, 0)), False)
sketch19.addGeometry(Part.LineSegment(Vector(42, 56, 0), Vector(-58, 56, 0)), False)
sketch19.addGeometry(Part.LineSegment(Vector(-58, 56, 0), Vector(-58, 14, 0)), False)
sketch19.addConstraint(Sketcher.Constraint("Coincident", 0, 2, 1, 1))
sketch19.addConstraint(Sketcher.Constraint("Coincident", 1, 2, 2, 1))
sketch19.addConstraint(Sketcher.Constraint("Coincident", 2, 2, 3, 1))
sketch19.addConstraint(Sketcher.Constraint("Coincident", 3, 2, 0, 1))
sketch19.addConstraint(Sketcher.Constraint("Horizontal", 0))
sketch19.addConstraint(Sketcher.Constraint("Vertical", 1))
sketch19.addConstraint(Sketcher.Constraint("Horizontal", 2))
sketch19.addConstraint(Sketcher.Constraint("Vertical", 3))
sketch19.addConstraint(Sketcher.Constraint("DistanceX", 0, 1, 0, 2, Q("99.816433 mm")))
sketch19.addConstraint(Sketcher.Constraint("DistanceY", 1, 1, 1, 2, Q("41.460193 mm")))
sketch19.addConstraint(Sketcher.Constraint("DistanceX", -1, 1, 0, 2, Q("42.054049 mm")))
sketch19.addConstraint(Sketcher.Constraint("DistanceY", -1, 1, 0, 2, Q("14.417739 mm")))
pocket17 = body.newObject("PartDesign::Pocket", "Pocket016")
pocket17.Profile = sketch19
pocket17.Length = 100

doc.recompute()
